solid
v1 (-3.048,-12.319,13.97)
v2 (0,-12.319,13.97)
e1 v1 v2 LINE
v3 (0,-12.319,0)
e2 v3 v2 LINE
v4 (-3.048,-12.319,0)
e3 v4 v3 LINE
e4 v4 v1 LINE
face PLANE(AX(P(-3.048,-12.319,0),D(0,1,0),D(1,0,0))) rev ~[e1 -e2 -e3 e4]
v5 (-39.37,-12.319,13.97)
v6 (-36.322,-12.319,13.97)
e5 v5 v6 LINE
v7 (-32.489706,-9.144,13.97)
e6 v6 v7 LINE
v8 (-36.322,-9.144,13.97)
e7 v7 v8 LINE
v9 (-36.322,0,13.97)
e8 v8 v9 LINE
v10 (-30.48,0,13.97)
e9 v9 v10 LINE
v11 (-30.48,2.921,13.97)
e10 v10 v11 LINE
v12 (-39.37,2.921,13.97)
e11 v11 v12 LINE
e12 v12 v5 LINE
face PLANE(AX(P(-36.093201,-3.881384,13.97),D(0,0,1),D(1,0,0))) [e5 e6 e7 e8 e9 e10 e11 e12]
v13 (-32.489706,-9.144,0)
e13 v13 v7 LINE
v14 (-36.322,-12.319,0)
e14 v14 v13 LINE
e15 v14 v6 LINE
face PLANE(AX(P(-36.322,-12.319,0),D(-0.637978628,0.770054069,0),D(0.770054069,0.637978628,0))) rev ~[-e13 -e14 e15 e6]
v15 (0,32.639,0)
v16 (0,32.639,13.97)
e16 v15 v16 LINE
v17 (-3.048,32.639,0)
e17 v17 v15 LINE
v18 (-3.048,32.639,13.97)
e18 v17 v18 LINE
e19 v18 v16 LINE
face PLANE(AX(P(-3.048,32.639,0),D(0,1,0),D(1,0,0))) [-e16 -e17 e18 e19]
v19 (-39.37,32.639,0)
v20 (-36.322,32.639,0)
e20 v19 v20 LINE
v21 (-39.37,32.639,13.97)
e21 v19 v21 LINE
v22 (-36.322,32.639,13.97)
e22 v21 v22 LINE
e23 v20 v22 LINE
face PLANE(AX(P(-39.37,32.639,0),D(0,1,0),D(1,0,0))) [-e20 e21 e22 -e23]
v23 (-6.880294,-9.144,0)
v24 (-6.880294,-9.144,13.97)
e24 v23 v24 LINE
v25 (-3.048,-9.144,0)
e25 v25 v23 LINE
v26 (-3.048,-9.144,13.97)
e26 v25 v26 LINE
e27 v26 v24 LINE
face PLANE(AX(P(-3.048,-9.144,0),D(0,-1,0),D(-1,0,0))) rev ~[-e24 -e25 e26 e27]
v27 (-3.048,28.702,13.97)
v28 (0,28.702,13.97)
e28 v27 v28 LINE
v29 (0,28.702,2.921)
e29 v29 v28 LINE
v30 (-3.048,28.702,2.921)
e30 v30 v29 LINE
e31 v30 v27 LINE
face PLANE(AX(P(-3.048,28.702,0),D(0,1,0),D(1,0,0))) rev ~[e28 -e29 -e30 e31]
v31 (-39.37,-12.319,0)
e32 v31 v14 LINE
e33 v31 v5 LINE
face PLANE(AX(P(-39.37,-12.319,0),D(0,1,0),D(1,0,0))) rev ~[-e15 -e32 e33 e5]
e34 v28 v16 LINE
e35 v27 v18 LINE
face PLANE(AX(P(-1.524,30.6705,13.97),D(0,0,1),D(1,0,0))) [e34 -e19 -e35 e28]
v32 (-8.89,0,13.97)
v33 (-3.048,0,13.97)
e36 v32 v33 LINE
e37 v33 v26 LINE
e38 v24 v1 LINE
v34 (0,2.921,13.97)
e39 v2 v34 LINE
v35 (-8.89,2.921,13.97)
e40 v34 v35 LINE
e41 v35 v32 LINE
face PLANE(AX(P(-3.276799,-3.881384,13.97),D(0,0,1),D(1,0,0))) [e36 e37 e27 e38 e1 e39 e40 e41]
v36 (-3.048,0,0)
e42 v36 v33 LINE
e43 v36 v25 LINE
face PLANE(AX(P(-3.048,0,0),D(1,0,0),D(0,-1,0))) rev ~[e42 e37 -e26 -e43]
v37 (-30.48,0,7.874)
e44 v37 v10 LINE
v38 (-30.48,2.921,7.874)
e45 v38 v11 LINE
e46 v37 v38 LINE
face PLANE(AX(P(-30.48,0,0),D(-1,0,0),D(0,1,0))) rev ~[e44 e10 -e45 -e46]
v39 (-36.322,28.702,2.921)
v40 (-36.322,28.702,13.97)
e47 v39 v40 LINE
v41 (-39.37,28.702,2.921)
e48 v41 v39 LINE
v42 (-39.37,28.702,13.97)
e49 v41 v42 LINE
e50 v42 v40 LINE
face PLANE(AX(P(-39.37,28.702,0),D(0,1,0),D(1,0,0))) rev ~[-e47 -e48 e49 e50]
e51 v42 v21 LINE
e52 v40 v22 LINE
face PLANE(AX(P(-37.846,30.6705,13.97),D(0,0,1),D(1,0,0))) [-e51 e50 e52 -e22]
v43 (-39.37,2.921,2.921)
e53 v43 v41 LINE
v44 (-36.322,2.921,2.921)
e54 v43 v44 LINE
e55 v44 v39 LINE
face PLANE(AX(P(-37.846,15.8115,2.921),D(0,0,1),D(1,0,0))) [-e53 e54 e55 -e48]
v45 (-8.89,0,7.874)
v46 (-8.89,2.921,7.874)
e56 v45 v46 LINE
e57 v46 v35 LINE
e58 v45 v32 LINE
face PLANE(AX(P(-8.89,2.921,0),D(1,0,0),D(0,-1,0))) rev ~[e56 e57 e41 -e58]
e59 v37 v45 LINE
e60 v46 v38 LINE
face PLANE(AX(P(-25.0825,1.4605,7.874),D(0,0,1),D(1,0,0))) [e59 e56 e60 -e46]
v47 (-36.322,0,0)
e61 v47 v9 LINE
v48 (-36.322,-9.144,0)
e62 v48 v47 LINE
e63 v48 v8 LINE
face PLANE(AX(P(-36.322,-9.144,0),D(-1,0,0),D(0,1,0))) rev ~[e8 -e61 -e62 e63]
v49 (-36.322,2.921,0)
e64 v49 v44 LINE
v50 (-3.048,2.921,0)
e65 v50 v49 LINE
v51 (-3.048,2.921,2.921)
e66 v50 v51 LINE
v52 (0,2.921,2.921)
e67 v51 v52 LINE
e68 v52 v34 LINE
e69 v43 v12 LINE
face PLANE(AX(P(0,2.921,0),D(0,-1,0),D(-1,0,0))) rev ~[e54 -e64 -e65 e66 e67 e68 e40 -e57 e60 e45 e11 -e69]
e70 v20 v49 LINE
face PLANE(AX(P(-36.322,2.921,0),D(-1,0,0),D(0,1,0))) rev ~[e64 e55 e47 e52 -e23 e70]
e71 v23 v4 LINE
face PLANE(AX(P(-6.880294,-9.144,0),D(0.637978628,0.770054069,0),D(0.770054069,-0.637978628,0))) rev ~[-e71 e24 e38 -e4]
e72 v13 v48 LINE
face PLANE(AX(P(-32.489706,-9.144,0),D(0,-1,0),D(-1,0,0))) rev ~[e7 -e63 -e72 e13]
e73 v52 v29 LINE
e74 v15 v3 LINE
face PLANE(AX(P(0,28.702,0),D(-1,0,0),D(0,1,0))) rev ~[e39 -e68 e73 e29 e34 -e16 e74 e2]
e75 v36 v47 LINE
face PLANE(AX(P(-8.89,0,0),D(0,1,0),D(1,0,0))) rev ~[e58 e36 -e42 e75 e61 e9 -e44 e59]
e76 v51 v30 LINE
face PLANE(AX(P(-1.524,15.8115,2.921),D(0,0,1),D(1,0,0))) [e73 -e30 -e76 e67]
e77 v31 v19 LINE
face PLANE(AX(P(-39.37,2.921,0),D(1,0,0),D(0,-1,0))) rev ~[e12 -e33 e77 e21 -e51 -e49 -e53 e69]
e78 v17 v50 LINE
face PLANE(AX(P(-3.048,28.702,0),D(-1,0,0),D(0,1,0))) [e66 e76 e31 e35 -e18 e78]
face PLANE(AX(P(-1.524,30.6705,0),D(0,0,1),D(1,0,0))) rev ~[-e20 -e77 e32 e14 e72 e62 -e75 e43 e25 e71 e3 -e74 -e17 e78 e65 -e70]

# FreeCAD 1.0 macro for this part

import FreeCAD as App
import Part
import Sketcher
Q = App.Units.Quantity

doc = App.newDocument("Part")
body = doc.addObject("PartDesign::Body", "Body")

sketch1 = body.newObject("Sketcher::SketchObject", "Sketch")
sketch1.AttachmentSupport = (doc.getObject("XY_Plane"), [""])
sketch1.MapMode = "FlatFace"
sketch1.addGeometry(Part.LineSegment(App.Vector(-30.5, 2.9, 0), App.Vector(-30.5, 0, 0)), False)
sketch1.addGeometry(Part.LineSegment(App.Vector(-30.5, 0, 0), App.Vector(-8.9, 0, 0)), False)
sketch1.addGeometry(Part.LineSegment(App.Vector(-8.9, 0, 0), App.Vector(-8.9, 2.9, 0)), False)
sketch1.addGeometry(Part.LineSegment(App.Vector(-8.9, 2.9, 0), App.Vector(-30.5, 2.9, 0)), False)
sketch1.addConstraint(Sketcher.Constraint("Coincident", 0, 2, 1, 1))
sketch1.addConstraint(Sketcher.Constraint("Coincident", 1, 2, 2, 1))
sketch1.addConstraint(Sketcher.Constraint("Coincident", 2, 2, 3, 1))
sketch1.addConstraint(Sketcher.Constraint("Coincident", 3, 2, 0, 1))
sketch1.addConstraint(Sketcher.Constraint("Vertical", 0))
sketch1.addConstraint(Sketcher.Constraint("Horizontal", 1))
sketch1.addConstraint(Sketcher.Constraint("Vertical", 2))
sketch1.addConstraint(Sketcher.Constraint("Horizontal", 3))
sketch1.addConstraint(Sketcher.Constraint("PointOnObject", 0, 2, -1))
sketch1.addConstraint(Sketcher.Constraint("DistanceX", 1, 1, 1, 2, Q("0.85 in")))
sketch1.addConstraint(Sketcher.Constraint("DistanceX", 0, 2, -1, 1, Q("1.2 in")))
sketch1.addConstraint(Sketcher.Constraint("DistanceY", 0, 2, 0, 1, Q("0.115 in")))
pad1 = body.newObject("PartDesign::Pad", "Pad")
pad1.Profile = sketch1
pad1.Length = Q("0.31 in")

sketch2 = body.newObject("Sketcher::SketchObject", "Sketch001")
sketch2.AttachmentSupport = (doc.getObject("XY_Plane"), [""])
sketch2.MapMode = "FlatFace"
sketch2.addGeometry(Part.LineSegment(App.Vector(0, 2.9, 0), App.Vector(-8.9, 2.9, 0)), False)
sketch2.addGeometry(Part.LineSegment(App.Vector(-8.9, 2.9, 0), App.Vector(-8.9, 0, 0)), False)
sketch2.addGeometry(Part.LineSegment(App.Vector(-8.9, 0, 0), App.Vector(-3, 0, 0)), False)
sketch2.addGeometry(Part.LineSegment(App.Vector(-3, 0, 0), App.Vector(-3, -9.1, 0)), False)
sketch2.addGeometry(Part.LineSegment(App.Vector(-3, -9.1, 0), App.Vector(-6.9, -9.1, 0)), False)
sketch2.addGeometry(Part.LineSegment(App.Vector(-6.9, -9.1, 0), App.Vector(-3, -12.3, 0)), False)
sketch2.addGeometry(Part.LineSegment(App.Vector(-3, -12.3, 0), App.Vector(0, -12.3, 0)), False)
sketch2.addGeometry(Part.LineSegment(App.Vector(0, -12.3, 0), App.Vector(0, 2.9, 0)), False)
sketch2.addGeometry(Part.LineSegment(App.Vector(-30.5, 0, 0), App.Vector(-30.5, 2.9, 0)), False)
sketch2.addGeometry(Part.LineSegment(App.Vector(-30.5, 2.9, 0), App.Vector(-39.4, 2.9, 0)), False)
sketch2.addGeometry(Part.LineSegment(App.Vector(-39.4, 2.9, 0), App.Vector(-39.4, -12.3, 0)), False)
sketch2.addGeometry(Part.LineSegment(App.Vector(-39.4, -12.3, 0), App.Vector(-36.3, -12.3, 0)), False)
sketch2.addGeometry(Part.LineSegment(App.Vector(-36.3, -12.3, 0), App.Vector(-32.5, -9.1, 0)), False)
sketch2.addGeometry(Part.LineSegment(App.Vector(-32.5, -9.1, 0), App.Vector(-36.3, -9.1, 0)), False)
sketch2.addGeometry(Part.LineSegment(App.Vector(-36.3, -9.1, 0), App.Vector(-36.3, 0, 0)), False)
sketch2.addGeometry(Part.LineSegment(App.Vector(-36.3, 0, 0), App.Vector(-30.5, 0, 0)), False)
sketch2.addConstraint(Sketcher.Constraint("Coincident", 0, 2, 1, 1))
sketch2.addConstraint(Sketcher.Constraint("Coincident", 1, 2, 2, 1))
sketch2.addConstraint(Sketcher.Constraint("Coincident", 2, 2, 3, 1))
sketch2.addConstraint(Sketcher.Constraint("Coincident", 3, 2, 4, 1))
sketch2.addConstraint(Sketcher.Constraint("Coincident", 4, 2, 5, 1))
sketch2.addConstraint(Sketcher.Constraint("Coincident", 5, 2, 6, 1))
sketch2.addConstraint(Sketcher.Constraint("Coincident", 6, 2, 7, 1))
sketch2.addConstraint(Sketcher.Constraint("Coincident", 7, 2, 0, 1))
sketch2.addConstraint(Sketcher.Constraint("Coincident", 8, 2, 9, 1))
sketch2.addConstraint(Sketcher.Constraint("Coincident", 9, 2, 10, 1))
sketch2.addConstraint(Sketcher.Constraint("Coincident", 10, 2, 11, 1))
sketch2.addConstraint(Sketcher.Constraint("Coincident", 11, 2, 12, 1))
sketch2.addConstraint(Sketcher.Constraint("Coincident", 12, 2, 13, 1))
sketch2.addConstraint(Sketcher.Constraint("Coincident", 13, 2, 14, 1))
sketch2.addConstraint(Sketcher.Constraint("Coincident", 14, 2, 15, 1))
sketch2.addConstraint(Sketcher.Constraint("Coincident", 15, 2, 8, 1))
sketch2.addConstraint(Sketcher.Constraint("Horizontal", 0))
sketch2.addConstraint(Sketcher.Constraint("Vertical", 1))
sketch2.addConstraint(Sketcher.Constraint("Horizontal", 2))
sketch2.addConstraint(Sketcher.Constraint("Vertical", 3))
sketch2.addConstraint(Sketcher.Constraint("Horizontal", 4))
sketch2.addConstraint(Sketcher.Constraint("Horizontal", 6))
sketch2.addConstraint(Sketcher.Constraint("Vertical", 7))
sketch2.addConstraint(Sketcher.Constraint("Vertical", 8))
sketch2.addConstraint(Sketcher.Constraint("Horizontal", 9))
sketch2.addConstraint(Sketcher.Constraint("Vertical", 10))
sketch2.addConstraint(Sketcher.Constraint("Horizontal", 11))
sketch2.addConstraint(Sketcher.Constraint("Horizontal", 13))
sketch2.addConstraint(Sketcher.Constraint("Vertical", 14))
sketch2.addConstraint(Sketcher.Constraint("Horizontal", 15))
sketch2.addConstraint(Sketcher.Constraint("PointOnObject", 1, 2, -1))
sketch2.addConstraint(Sketcher.Constraint("PointOnObject", 6, 2, -2))
sketch2.addConstraint(Sketcher.Constraint("PointOnObject", 14, 2, -1))
sketch2.addConstraint(Sketcher.Constraint("Horizontal", 7, 2, 8, 2))
sketch2.addConstraint(Sketcher.Constraint("Horizontal", 6, 2, 10, 2))
sketch2.addConstraint(Sketcher.Constraint("Horizontal", 4, 2, 12, 2))
sketch2.addConstraint(Sketcher.Constraint("Vertical", 3, 2, 5, 2))
sketch2.addConstraint(Sketcher.Constraint("Vertical", 11, 2, 13, 2))
sketch2.addConstraint(Sketcher.Constraint("Equal", 0, 9))
sketch2.addConstraint(Sketcher.Constraint("Equal", 6, 11))
sketch2.addConstraint(Sketcher.Constraint("Equal", 4, 13))
sketch2.addConstraint(Sketcher.Constraint("DistanceY", 7, 1, 7, 2, Q("0.6 in")))
sketch2.addConstraint(Sketcher.Constraint("DistanceX", 0, 2, 0, 1, Q("0.35 in")))
sketch2.addConstraint(Sketcher.Constraint("DistanceX", 2, 1, 2, 2, Q("0.23 in")))
sketch2.addConstraint(Sketcher.Constraint("DistanceY", 3, 2, 3, 1, Q("0.36 in")))
sketch2.addConstraint(Sketcher.Constraint("DistanceX", 8, 2, -1, 1, Q("1.2 in")))
sketch2.addConstraint(Sketcher.Constraint("DistanceY", 1, 2, 1, 1, Q("0.115 in")))
sketch2.addConstraint(Sketcher.Constraint("DistanceX", 4, 2, 4, 1, Q("3.832294 mm")))
pad2 = body.newObject("PartDesign::Pad", "Pad001")
pad2.Profile = sketch2
pad2.Length = Q("0.55 in")

sketch3 = body.newObject("Sketcher::SketchObject", "Sketch002")
sketch3.AttachmentSupport = (doc.getObject("XY_Plane"), [""])
sketch3.MapMode = "FlatFace"
sketch3.addGeometry(Part.LineSegment(App.Vector(-3, 28.7, 0), App.Vector(-3, 2.9, 0)), False)
sketch3.addGeometry(Part.LineSegment(App.Vector(-3, 2.9, 0), App.Vector(0, 2.9, 0)), False)
sketch3.addGeometry(Part.LineSegment(App.Vector(0, 2.9, 0), App.Vector(0, 28.7, 0)), False)
sketch3.addGeometry(Part.LineSegment(App.Vector(0, 28.7, 0), App.Vector(-3, 28.7, 0)), False)
sketch3.addGeometry(Part.LineSegment(App.Vector(-39.4, 28.7, 0), App.Vector(-39.4, 2.9, 0)), False)
sketch3.addGeometry(Part.LineSegment(App.Vector(-39.4, 2.9, 0), App.Vector(-36.3, 2.9, 0)), False)
sketch3.addGeometry(Part.LineSegment(App.Vector(-36.3, 2.9, 0), App.Vector(-36.3, 28.7, 0)), False)
sketch3.addGeometry(Part.LineSegment(App.Vector(-36.3, 28.7, 0), App.Vector(-39.4, 28.7, 0)), False)
sketch3.addConstraint(Sketcher.Constraint("Coincident", 0, 2, 1, 1))
sketch3.addConstraint(Sketcher.Constraint("Coincident", 1, 2, 2, 1))
sketch3.addConstraint(Sketcher.Constraint("Coincident", 2, 2, 3, 1))
sketch3.addConstraint(Sketcher.Constraint("Coincident", 3, 2, 0, 1))
sketch3.addConstraint(Sketcher.Constraint("Coincident", 4, 2, 5, 1))
sketch3.addConstraint(Sketcher.Constraint("Coincident", 5, 2, 6, 1))
sketch3.addConstraint(Sketcher.Constraint("Coincident", 6, 2, 7, 1))
sketch3.addConstraint(Sketcher.Constraint("Coincident", 7, 2, 4, 1))
sketch3.addConstraint(Sketcher.Constraint("Vertical", 0))
sketch3.addConstraint(Sketcher.Constraint("Horizontal", 1))
sketch3.addConstraint(Sketcher.Constraint("Vertical", 2))
sketch3.addConstraint(Sketcher.Constraint("Horizontal", 3))
sketch3.addConstraint(Sketcher.Constraint("Vertical", 4))
sketch3.addConstraint(Sketcher.Constraint("Horizontal", 5))
sketch3.addConstraint(Sketcher.Constraint("Vertical", 6))
sketch3.addConstraint(Sketcher.Constraint("Horizontal", 7))
sketch3.addConstraint(Sketcher.Constraint("PointOnObject", 1, 2, -2))
sketch3.addConstraint(Sketcher.Constraint("Horizontal", 1, 2, 4, 2))
sketch3.addConstraint(Sketcher.Constraint("Horizontal", 3, 2, 6, 2))
sketch3.addConstraint(Sketcher.Constraint("Equal", 3, 5))
sketch3.addConstraint(Sketcher.Constraint("DistanceX", 1, 1, 1, 2, Q("0.12 in")))
sketch3.addConstraint(Sketcher.Constraint("DistanceY", 0, 2, 0, 1, Q("1.015 in")))
sketch3.addConstraint(Sketcher.Constraint("DistanceY", -1, 1, 2, 2, Q("1.13 in")))
sketch3.addConstraint(Sketcher.Constraint("DistanceX", 4, 2, -1, 1, Q("1.55 in")))
pad3 = body.newObject("PartDesign::Pad", "Pad002")
pad3.Profile = sketch3
pad3.Length = Q("0.115 in")

sketch4 = body.newObject("Sketcher::SketchObject", "Sketch003")
sketch4.AttachmentSupport = (doc.getObject("XY_Plane"), [""])
sketch4.MapMode = "FlatFace"
sketch4.addGeometry(Part.LineSegment(App.Vector(-3, 32.6, 0), App.Vector(-3, 28.7, 0)), False)
sketch4.addGeometry(Part.LineSegment(App.Vector(-3, 28.7, 0), App.Vector(0, 28.7, 0)), False)
sketch4.addGeometry(Part.LineSegment(App.Vector(0, 28.7, 0), App.Vector(0, 32.6, 0)), False)
sketch4.addGeometry(Part.LineSegment(App.Vector(0, 32.6, 0), App.Vector(-3, 32.6, 0)), False)
sketch4.addGeometry(Part.LineSegment(App.Vector(-39.4, 32.6, 0), App.Vector(-39.4, 28.7, 0)), False)
sketch4.addGeometry(Part.LineSegment(App.Vector(-39.4, 28.7, 0), App.Vector(-36.3, 28.7, 0)), False)
sketch4.addGeometry(Part.LineSegment(App.Vector(-36.3, 28.7, 0), App.Vector(-36.3, 32.6, 0)), False)
sketch4.addGeometry(Part.LineSegment(App.Vector(-36.3, 32.6, 0), App.Vector(-39.4, 32.6, 0)), False)
sketch4.addConstraint(Sketcher.Constraint("Coincident", 0, 2, 1, 1))
sketch4.addConstraint(Sketcher.Constraint("Coincident", 1, 2, 2, 1))
sketch4.addConstraint(Sketcher.Constraint("Coincident", 2, 2, 3, 1))
sketch4.addConstraint(Sketcher.Constraint("Coincident", 3, 2, 0, 1))
sketch4.addConstraint(Sketcher.Constraint("Coincident", 4, 2, 5, 1))
sketch4.addConstraint(Sketcher.Constraint("Coincident", 5, 2, 6, 1))
sketch4.addConstraint(Sketcher.Constraint("Coincident", 6, 2, 7, 1))
sketch4.addConstraint(Sketcher.Constraint("Coincident", 7, 2, 4, 1))
sketch4.addConstraint(Sketcher.Constraint("Vertical", 0))
sketch4.addConstraint(Sketcher.Constraint("Horizontal", 1))
sketch4.addConstraint(Sketcher.Constraint("Vertical", 2))
sketch4.addConstraint(Sketcher.Constraint("Horizontal", 3))
sketch4.addConstraint(Sketcher.Constraint("Vertical", 4))
sketch4.addConstraint(Sketcher.Constraint("Horizontal", 5))
sketch4.addConstraint(Sketcher.Constraint("Vertical", 6))
sketch4.addConstraint(Sketcher.Constraint("Horizontal", 7))
sketch4.addConstraint(Sketcher.Constraint("PointOnObject", 1, 2, -2))
sketch4.addConstraint(Sketcher.Constraint("Horizontal", 1, 2, 4, 2))
sketch4.addConstraint(Sketcher.Constraint("Horizontal", 3, 2, 6, 2))
sketch4.addConstraint(Sketcher.Constraint("Equal", 3, 5))
sketch4.addConstraint(Sketcher.Constraint("DistanceX", 1, 1, 1, 2, Q("0.12 in")))
sketch4.addConstraint(Sketcher.Constraint("DistanceY", 0, 2, 0, 1, Q("0.155 in")))
sketch4.addConstraint(Sketcher.Constraint("DistanceY", -1, 1, 0, 2, Q("1.13 in")))
sketch4.addConstraint(Sketcher.Constraint("DistanceX", 4, 2, -1, 1, Q("1.55 in")))
pad4 = body.newObject("PartDesign::Pad", "Pad003")
pad4.Profile = sketch4
pad4.Length = Q("0.55 in")

doc.recompute()
